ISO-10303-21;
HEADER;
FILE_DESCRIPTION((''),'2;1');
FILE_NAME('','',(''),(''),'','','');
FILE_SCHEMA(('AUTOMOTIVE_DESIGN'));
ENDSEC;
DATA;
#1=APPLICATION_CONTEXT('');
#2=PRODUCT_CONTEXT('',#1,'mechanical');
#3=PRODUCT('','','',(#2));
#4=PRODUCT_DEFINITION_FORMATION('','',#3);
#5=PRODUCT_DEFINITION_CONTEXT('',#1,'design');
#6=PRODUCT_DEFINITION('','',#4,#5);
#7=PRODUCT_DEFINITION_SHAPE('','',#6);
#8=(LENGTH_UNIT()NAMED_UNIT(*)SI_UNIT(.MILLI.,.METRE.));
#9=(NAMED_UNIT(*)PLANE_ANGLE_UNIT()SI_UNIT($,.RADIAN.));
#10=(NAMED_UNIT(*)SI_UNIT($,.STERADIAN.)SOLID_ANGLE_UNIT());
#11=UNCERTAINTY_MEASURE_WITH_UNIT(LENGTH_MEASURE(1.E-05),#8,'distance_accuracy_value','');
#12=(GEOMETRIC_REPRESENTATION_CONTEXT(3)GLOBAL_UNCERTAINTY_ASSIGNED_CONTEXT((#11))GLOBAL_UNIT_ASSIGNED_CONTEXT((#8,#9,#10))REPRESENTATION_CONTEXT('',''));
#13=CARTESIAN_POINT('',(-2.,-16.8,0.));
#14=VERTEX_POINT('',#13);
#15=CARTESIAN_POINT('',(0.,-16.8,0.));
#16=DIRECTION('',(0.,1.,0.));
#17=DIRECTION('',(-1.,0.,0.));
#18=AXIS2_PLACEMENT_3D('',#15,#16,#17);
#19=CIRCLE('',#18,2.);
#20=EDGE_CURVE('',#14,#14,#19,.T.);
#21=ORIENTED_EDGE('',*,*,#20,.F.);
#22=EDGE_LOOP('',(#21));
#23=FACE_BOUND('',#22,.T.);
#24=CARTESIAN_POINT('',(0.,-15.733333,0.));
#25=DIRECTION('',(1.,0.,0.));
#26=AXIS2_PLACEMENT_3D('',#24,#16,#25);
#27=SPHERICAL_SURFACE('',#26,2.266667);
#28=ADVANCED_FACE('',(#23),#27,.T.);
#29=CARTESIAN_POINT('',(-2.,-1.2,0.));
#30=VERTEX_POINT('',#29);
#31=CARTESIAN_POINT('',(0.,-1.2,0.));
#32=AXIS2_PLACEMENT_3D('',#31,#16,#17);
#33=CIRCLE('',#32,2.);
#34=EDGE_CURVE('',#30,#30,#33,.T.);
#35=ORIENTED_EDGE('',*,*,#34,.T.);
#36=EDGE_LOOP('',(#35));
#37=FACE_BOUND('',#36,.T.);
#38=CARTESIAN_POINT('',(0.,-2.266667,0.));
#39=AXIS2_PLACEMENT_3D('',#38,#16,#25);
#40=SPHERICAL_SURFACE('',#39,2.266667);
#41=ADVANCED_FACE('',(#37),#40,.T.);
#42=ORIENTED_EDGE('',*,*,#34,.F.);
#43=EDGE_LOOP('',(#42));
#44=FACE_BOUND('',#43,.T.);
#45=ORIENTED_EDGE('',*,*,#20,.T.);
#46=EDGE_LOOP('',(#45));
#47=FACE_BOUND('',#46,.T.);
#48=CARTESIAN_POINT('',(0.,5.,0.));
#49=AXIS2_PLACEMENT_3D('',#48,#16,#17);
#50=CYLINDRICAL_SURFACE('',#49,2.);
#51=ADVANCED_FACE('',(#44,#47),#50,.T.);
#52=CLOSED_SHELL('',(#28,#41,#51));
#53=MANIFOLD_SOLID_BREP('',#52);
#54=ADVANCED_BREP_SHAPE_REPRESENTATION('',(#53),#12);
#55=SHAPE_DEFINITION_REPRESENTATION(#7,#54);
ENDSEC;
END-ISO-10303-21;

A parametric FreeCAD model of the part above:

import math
import FreeCAD as App
import Part
import Sketcher
Q = App.Units.Quantity

doc = App.newDocument("Part")
body = doc.addObject("PartDesign::Body", "Body")

sketch1 = body.newObject("Sketcher::SketchObject", "Sketch")
sketch1.AttachmentSupport = (doc.getObject("XY_Plane"), [""])
sketch1.MapMode = "FlatFace"
sketch1.addGeometry([
    Part.LineSegment(App.Vector(2, -16.8, 0), App.Vector(2, -1.2, 0)),
    Part.ArcOfCircle(Part.Circle(App.Vector(0, -2.3, 0), App.Vector(0, 0, 1), 2.3), math.radians(28), math.radians(90)),
    Part.LineSegment(App.Vector(0, 0, 0), App.Vector(0, -18, 0)),
    Part.ArcOfCircle(Part.Circle(App.Vector(0, -15.7, 0), App.Vector(0, 0, 1), 2.3), math.radians(-90), math.radians(-28)),
], False)
sketch1.addConstraint([
    Sketcher.Constraint("Coincident", 0, 2, 1, 1),
    Sketcher.Constraint("Coincident", 1, 2, 2, 1),
    Sketcher.Constraint("Coincident", 2, 2, 3, 1),
    Sketcher.Constraint("Coincident", 3, 2, 0, 1),
    Sketcher.Constraint("Vertical", 0),
    Sketcher.Constraint("Vertical", 2),
    Sketcher.Constraint("Coincident", 1, 2, -1, 1),
    Sketcher.Constraint("Equal", 1, 3),
    Sketcher.Constraint("PointOnObject", 1, 3, -2),
    Sketcher.Constraint("PointOnObject", 3, 3, -2),
    Sketcher.Constraint("DistanceY", 2, 2, 2, 1, Q("18 mm")),
    Sketcher.Constraint("DistanceY", 0, 1, 0, 2, Q("15.6 mm")),
    Sketcher.Constraint("DistanceX", -1, 1, 0, 2, Q("2 mm")),
])
revolution = body.newObject("PartDesign::Revolution", "Revolution")
revolution.Profile = sketch1
revolution.ReferenceAxis = (sketch1, ["V_Axis"])
revolution.Angle = 360

doc.recompute()
